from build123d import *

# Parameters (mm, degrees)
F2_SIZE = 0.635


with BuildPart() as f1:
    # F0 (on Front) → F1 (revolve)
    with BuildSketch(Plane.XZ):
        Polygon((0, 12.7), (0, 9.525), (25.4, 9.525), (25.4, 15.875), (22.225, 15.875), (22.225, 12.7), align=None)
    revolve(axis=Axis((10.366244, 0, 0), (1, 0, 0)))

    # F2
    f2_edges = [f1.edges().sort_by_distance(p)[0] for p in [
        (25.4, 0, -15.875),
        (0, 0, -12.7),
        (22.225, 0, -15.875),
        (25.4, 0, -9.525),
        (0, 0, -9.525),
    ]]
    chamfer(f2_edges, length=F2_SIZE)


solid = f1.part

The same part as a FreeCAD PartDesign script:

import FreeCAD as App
import Part
import Sketcher

V = App.Vector
Q = App.Units.Quantity


def edges_at(feature, points):
    """Names of the edges that pass closest to the given points."""
    edges = feature.Shape.Edges
    near = lambda p: min(range(len(edges)), key=lambda i: edges[i].distToShape(Part.Vertex(*p))[0])
    return sorted({f"Edge{near(p) + 1}" for p in points})

doc = App.newDocument("Part")
body = doc.addObject("PartDesign::Body", "Body")

sketch1 = doc.addObject("Sketcher::SketchObject", "Sketch")
body.addObject(sketch1)
sketch1.AttachmentSupport = (doc.XZ_Plane, [""])
sketch1.MapMode = "FlatFace"
sketch1.addGeometry(Part.LineSegment(V(0, 12.7, 0), V(0, 9.5, 0)), False)
sketch1.addGeometry(Part.LineSegment(V(0, 9.5, 0), V(25.4, 9.5, 0)), False)
sketch1.addGeometry(Part.LineSegment(V(25.4, 9.5, 0), V(25.4, 15.9, 0)), False)
sketch1.addGeometry(Part.LineSegment(V(25.4, 15.9, 0), V(22.2, 15.9, 0)), False)
sketch1.addGeometry(Part.LineSegment(V(22.2, 15.9, 0), V(22.2, 12.7, 0)), False)
sketch1.addGeometry(Part.LineSegment(V(22.2, 12.7, 0), V(0, 12.7, 0)), False)
sketch1.addConstraint(Sketcher.Constraint("Coincident", 0, 2, 1, 1))
sketch1.addConstraint(Sketcher.Constraint("Coincident", 1, 2, 2, 1))
sketch1.addConstraint(Sketcher.Constraint("Coincident", 2, 2, 3, 1))
sketch1.addConstraint(Sketcher.Constraint("Coincident", 3, 2, 4, 1))
sketch1.addConstraint(Sketcher.Constraint("Coincident", 4, 2, 5, 1))
sketch1.addConstraint(Sketcher.Constraint("Coincident", 5, 2, 0, 1))
sketch1.addConstraint(Sketcher.Constraint("Vertical", 0))
sketch1.addConstraint(Sketcher.Constraint("Horizontal", 1))
sketch1.addConstraint(Sketcher.Constraint("Vertical", 2))
sketch1.addConstraint(Sketcher.Constraint("Horizontal", 3))
sketch1.addConstraint(Sketcher.Constraint("Vertical", 4))
sketch1.addConstraint(Sketcher.Constraint("Horizontal", 5))
sketch1.addConstraint(Sketcher.Constraint("PointOnObject", 0, 2, -2))
sketch1.addConstraint(Sketcher.Constraint("Equal", 3, 0))
sketch1.addConstraint(Sketcher.Constraint("Equal", 0, 4))
sketch1.addConstraint(Sketcher.Constraint("DistanceX", 1, 1, 1, 2, Q("1 in")))
sketch1.addConstraint(Sketcher.Constraint("DistanceY", 2, 1, 2, 2, Q("0.25 in")))
sketch1.addConstraint(Sketcher.Constraint("DistanceY", -1, 1, 4, 2, Q("0.5 in")))
revolution = doc.addObject("PartDesign::Revolution", "Revolution")
body.addObject(revolution)
revolution.Profile = sketch1
revolution.ReferenceAxis = (sketch1, ["H_Axis"])
revolution.Angle = 360
doc.recompute()

chamfer = doc.addObject("PartDesign::Chamfer", "Chamfer")
body.addObject(chamfer)
chamfer.Base = (revolution, edges_at(revolution, [
    (25.4, 0, -15.875),
    (0, 0, -12.7),
    (22.225, 0, -15.875),
    (25.4, 0, -9.525),
    (0, 0, -9.525),
]))
chamfer.Size = Q("0.025 in")

doc.recompute()
